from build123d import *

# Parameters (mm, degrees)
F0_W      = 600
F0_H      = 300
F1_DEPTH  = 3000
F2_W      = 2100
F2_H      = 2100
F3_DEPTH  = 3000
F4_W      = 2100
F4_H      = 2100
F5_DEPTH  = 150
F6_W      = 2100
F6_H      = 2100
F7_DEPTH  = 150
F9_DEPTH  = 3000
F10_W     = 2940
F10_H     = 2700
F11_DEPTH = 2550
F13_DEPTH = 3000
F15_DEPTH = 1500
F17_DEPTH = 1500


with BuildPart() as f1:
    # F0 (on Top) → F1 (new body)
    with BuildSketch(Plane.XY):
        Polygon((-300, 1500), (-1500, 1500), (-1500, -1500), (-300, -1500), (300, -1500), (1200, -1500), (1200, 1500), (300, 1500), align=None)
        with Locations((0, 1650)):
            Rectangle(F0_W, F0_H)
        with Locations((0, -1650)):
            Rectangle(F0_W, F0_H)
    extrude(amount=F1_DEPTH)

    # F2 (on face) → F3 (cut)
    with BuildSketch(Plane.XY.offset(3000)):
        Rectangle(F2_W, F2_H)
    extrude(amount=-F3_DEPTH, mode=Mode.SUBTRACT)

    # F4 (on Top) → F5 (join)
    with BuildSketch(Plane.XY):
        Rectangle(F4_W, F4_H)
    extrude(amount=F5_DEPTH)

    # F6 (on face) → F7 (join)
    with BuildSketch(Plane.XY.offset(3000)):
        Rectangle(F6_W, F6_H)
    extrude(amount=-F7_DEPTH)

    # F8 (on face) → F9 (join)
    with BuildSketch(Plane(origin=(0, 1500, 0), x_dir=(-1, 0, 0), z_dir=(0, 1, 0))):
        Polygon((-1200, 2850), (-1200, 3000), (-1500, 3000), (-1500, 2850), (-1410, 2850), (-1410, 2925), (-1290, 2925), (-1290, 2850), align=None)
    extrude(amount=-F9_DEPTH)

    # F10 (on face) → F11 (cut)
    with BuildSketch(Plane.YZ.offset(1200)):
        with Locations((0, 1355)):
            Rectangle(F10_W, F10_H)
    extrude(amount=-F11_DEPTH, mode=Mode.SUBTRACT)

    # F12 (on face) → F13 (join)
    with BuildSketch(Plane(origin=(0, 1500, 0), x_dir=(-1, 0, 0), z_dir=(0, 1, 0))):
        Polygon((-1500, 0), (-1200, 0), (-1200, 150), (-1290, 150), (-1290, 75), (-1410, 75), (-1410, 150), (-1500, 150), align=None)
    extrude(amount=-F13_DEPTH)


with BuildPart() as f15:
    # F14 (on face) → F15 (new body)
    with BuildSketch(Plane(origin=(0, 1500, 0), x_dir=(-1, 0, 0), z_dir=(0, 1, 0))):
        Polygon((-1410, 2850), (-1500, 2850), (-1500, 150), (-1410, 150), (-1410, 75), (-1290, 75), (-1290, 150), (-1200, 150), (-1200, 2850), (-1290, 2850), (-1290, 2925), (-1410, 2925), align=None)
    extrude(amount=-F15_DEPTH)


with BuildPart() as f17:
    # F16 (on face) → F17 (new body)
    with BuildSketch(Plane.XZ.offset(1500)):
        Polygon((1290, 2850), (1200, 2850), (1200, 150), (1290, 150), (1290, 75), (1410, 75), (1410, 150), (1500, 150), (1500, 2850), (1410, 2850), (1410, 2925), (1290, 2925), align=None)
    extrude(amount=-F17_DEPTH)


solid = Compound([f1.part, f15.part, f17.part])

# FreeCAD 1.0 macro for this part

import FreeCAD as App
import Part
import Sketcher

V = App.Vector

doc = App.newDocument("Part")
body = doc.addObject("PartDesign::Body", "Body")

# Sketch on XY plane
sketch1 = doc.addObject("Sketcher::SketchObject", "Sketch")
body.addObject(sketch1)
sketch1.AttachmentSupport = (doc.XY_Plane, [""])
sketch1.MapMode = "FlatFace"
sketch1.addGeometry(Part.LineSegment(V(-1500, 1500, 0), V(-1500, -1500, 0)), False)
sketch1.addGeometry(Part.LineSegment(V(-1500, -1500, 0), V(-300, -1500, 0)), False)
sketch1.addGeometry(Part.LineSegment(V(-300, -1500, 0), V(-300, -1800, 0)), False)
sketch1.addGeometry(Part.LineSegment(V(-300, -1800, 0), V(300, -1800, 0)), False)
sketch1.addGeometry(Part.LineSegment(V(300, -1800, 0), V(300, -1500, 0)), False)
sketch1.addGeometry(Part.LineSegment(V(300, -1500, 0), V(1200, -1500, 0)), False)
sketch1.addGeometry(Part.LineSegment(V(1200, -1500, 0), V(1200, 1500, 0)), False)
sketch1.addGeometry(Part.LineSegment(V(1200, 1500, 0), V(300, 1500, 0)), False)
sketch1.addGeometry(Part.LineSegment(V(300, 1500, 0), V(300, 1800, 0)), False)
sketch1.addGeometry(Part.LineSegment(V(300, 1800, 0), V(-300, 1800, 0)), False)
sketch1.addGeometry(Part.LineSegment(V(-300, 1800, 0), V(-300, 1500, 0)), False)
sketch1.addGeometry(Part.LineSegment(V(-300, 1500, 0), V(-1500, 1500, 0)), False)
sketch1.addConstraint(Sketcher.Constraint("Coincident", 0, 2, 1, 1))
sketch1.addConstraint(Sketcher.Constraint("Coincident", 1, 2, 2, 1))
sketch1.addConstraint(Sketcher.Constraint("Coincident", 2, 2, 3, 1))
sketch1.addConstraint(Sketcher.Constraint("Coincident", 3, 2, 4, 1))
sketch1.addConstraint(Sketcher.Constraint("Coincident", 4, 2, 5, 1))
sketch1.addConstraint(Sketcher.Constraint("Coincident", 5, 2, 6, 1))
sketch1.addConstraint(Sketcher.Constraint("Coincident", 6, 2, 7, 1))
sketch1.addConstraint(Sketcher.Constraint("Coincident", 7, 2, 8, 1))
sketch1.addConstraint(Sketcher.Constraint("Coincident", 8, 2, 9, 1))
sketch1.addConstraint(Sketcher.Constraint("Coincident", 9, 2, 10, 1))
sketch1.addConstraint(Sketcher.Constraint("Coincident", 10, 2, 11, 1))
sketch1.addConstraint(Sketcher.Constraint("Coincident", 11, 2, 0, 1))
sketch1.addConstraint(Sketcher.Constraint("Vertical", 0))
sketch1.addConstraint(Sketcher.Constraint("Horizontal", 1))
sketch1.addConstraint(Sketcher.Constraint("Vertical", 2))
sketch1.addConstraint(Sketcher.Constraint("Horizontal", 3))
sketch1.addConstraint(Sketcher.Constraint("Vertical", 4))
sketch1.addConstraint(Sketcher.Constraint("Horizontal", 5))
sketch1.addConstraint(Sketcher.Constraint("Vertical", 6))
sketch1.addConstraint(Sketcher.Constraint("Horizontal", 7))
sketch1.addConstraint(Sketcher.Constraint("Vertical", 8))
sketch1.addConstraint(Sketcher.Constraint("Horizontal", 9))
sketch1.addConstraint(Sketcher.Constraint("Vertical", 10))
sketch1.addConstraint(Sketcher.Constraint("Horizontal", 11))
sketch1.addConstraint(Sketcher.Constraint("Symmetric", 1, 2, 7, 2, -1, 1))
sketch1.addConstraint(Sketcher.Constraint("Symmetric", 3, 2, 9, 2, -1, 1))
sketch1.addConstraint(Sketcher.Constraint("Symmetric", 1, 2, 4, 2, -2))
sketch1.addConstraint(Sketcher.Constraint("Horizontal", 7, 2, 10, 2))
sketch1.addConstraint(Sketcher.Constraint("DistanceX", 1, 1, 1, 2, 1200.0))
sketch1.addConstraint(Sketcher.Constraint("DistanceX", 3, 1, 3, 2, 600.0))
sketch1.addConstraint(Sketcher.Constraint("DistanceX", 5, 1, 5, 2, 900.0))
sketch1.addConstraint(Sketcher.Constraint("DistanceY", 0, 2, 0, 1, 3000.0))
sketch1.addConstraint(Sketcher.Constraint("DistanceY", 2, 2, 2, 1, 300.0))
pad1 = doc.addObject("PartDesign::Pad", "Pad")
body.addObject(pad1)
pad1.Profile = sketch1
pad1.Length = 3000

# Sketch on XY plane
sketch2 = doc.addObject("Sketcher::SketchObject", "Sketch001")
body.addObject(sketch2)
sketch2.AttachmentSupport = (doc.XY_Plane, [""])
sketch2.MapMode = "FlatFace"
sketch2.AttachmentOffset = App.Placement(V(0, 0, 3000), App.Rotation())
sketch2.addGeometry(Part.LineSegment(V(-1050, 1050, 0), V(-1050, -1050, 0)), False)
sketch2.addGeometry(Part.LineSegment(V(-1050, -1050, 0), V(1050, -1050, 0)), False)
sketch2.addGeometry(Part.LineSegment(V(1050, -1050, 0), V(1050, 1050, 0)), False)
sketch2.addGeometry(Part.LineSegment(V(1050, 1050, 0), V(-1050, 1050, 0)), False)
sketch2.addConstraint(Sketcher.Constraint("Coincident", 0, 2, 1, 1))
sketch2.addConstraint(Sketcher.Constraint("Coincident", 1, 2, 2, 1))
sketch2.addConstraint(Sketcher.Constraint("Coincident", 2, 2, 3, 1))
sketch2.addConstraint(Sketcher.Constraint("Coincident", 3, 2, 0, 1))
sketch2.addConstraint(Sketcher.Constraint("Vertical", 0))
sketch2.addConstraint(Sketcher.Constraint("Horizontal", 1))
sketch2.addConstraint(Sketcher.Constraint("Vertical", 2))
sketch2.addConstraint(Sketcher.Constraint("Horizontal", 3))
sketch2.addConstraint(Sketcher.Constraint("Symmetric", 0, 2, 2, 2, -1, 1))
sketch2.addConstraint(Sketcher.Constraint("Equal", 3, 0))
sketch2.addConstraint(Sketcher.Constraint("DistanceX", 1, 1, 1, 2, 2100.0))
pocket1 = doc.addObject("PartDesign::Pocket", "Pocket")
body.addObject(pocket1)
pocket1.Profile = sketch2
pocket1.Length = 3000

# Sketch on XY plane
sketch3 = doc.addObject("Sketcher::SketchObject", "Sketch002")
body.addObject(sketch3)
sketch3.AttachmentSupport = (doc.XY_Plane, [""])
sketch3.MapMode = "FlatFace"
sketch3.addGeometry(Part.LineSegment(V(-1050, 1050, 0), V(-1050, -1050, 0)), False)
sketch3.addGeometry(Part.LineSegment(V(-1050, -1050, 0), V(1050, -1050, 0)), False)
sketch3.addGeometry(Part.LineSegment(V(1050, -1050, 0), V(1050, 1050, 0)), False)
sketch3.addGeometry(Part.LineSegment(V(1050, 1050, 0), V(-1050, 1050, 0)), False)
sketch3.addConstraint(Sketcher.Constraint("Coincident", 0, 2, 1, 1))
sketch3.addConstraint(Sketcher.Constraint("Coincident", 1, 2, 2, 1))
sketch3.addConstraint(Sketcher.Constraint("Coincident", 2, 2, 3, 1))
sketch3.addConstraint(Sketcher.Constraint("Coincident", 3, 2, 0, 1))
sketch3.addConstraint(Sketcher.Constraint("Vertical", 0))
sketch3.addConstraint(Sketcher.Constraint("Horizontal", 1))
sketch3.addConstraint(Sketcher.Constraint("Vertical", 2))
sketch3.addConstraint(Sketcher.Constraint("Horizontal", 3))
sketch3.addConstraint(Sketcher.Constraint("Symmetric", 0, 2, 2, 2, -1, 1))
sketch3.addConstraint(Sketcher.Constraint("Equal", 3, 0))
sketch3.addConstraint(Sketcher.Constraint("DistanceX", 1, 1, 1, 2, 2100.0))
pad2 = doc.addObject("PartDesign::Pad", "Pad001")
body.addObject(pad2)
pad2.Profile = sketch3
pad2.Length = 150

# Sketch on XY plane
sketch4 = doc.addObject("Sketcher::SketchObject", "Sketch003")
body.addObject(sketch4)
sketch4.AttachmentSupport = (doc.XY_Plane, [""])
sketch4.MapMode = "FlatFace"
sketch4.AttachmentOffset = App.Placement(V(0, 0, 3000), App.Rotation())
sketch4.addGeometry(Part.LineSegment(V(-1050, 1050, 0), V(-1050, -1050, 0)), False)
sketch4.addGeometry(Part.LineSegment(V(-1050, -1050, 0), V(1050, -1050, 0)), False)
sketch4.addGeometry(Part.LineSegment(V(1050, -1050, 0), V(1050, 1050, 0)), False)
sketch4.addGeometry(Part.LineSegment(V(1050, 1050, 0), V(-1050, 1050, 0)), False)
sketch4.addConstraint(Sketcher.Constraint("Coincident", 0, 2, 1, 1))
sketch4.addConstraint(Sketcher.Constraint("Coincident", 1, 2, 2, 1))
sketch4.addConstraint(Sketcher.Constraint("Coincident", 2, 2, 3, 1))
sketch4.addConstraint(Sketcher.Constraint("Coincident", 3, 2, 0, 1))
sketch4.addConstraint(Sketcher.Constraint("Vertical", 0))
sketch4.addConstraint(Sketcher.Constraint("Horizontal", 1))
sketch4.addConstraint(Sketcher.Constraint("Vertical", 2))
sketch4.addConstraint(Sketcher.Constraint("Horizontal", 3))
sketch4.addConstraint(Sketcher.Constraint("Symmetric", 0, 2, 2, 2, -1, 1))
sketch4.addConstraint(Sketcher.Constraint("Equal", 3, 0))
sketch4.addConstraint(Sketcher.Constraint("DistanceX", 1, 1, 1, 2, 2100.0))
pad3 = doc.addObject("PartDesign::Pad", "Pad002")
body.addObject(pad3)
pad3.Profile = sketch4
pad3.Length = 150
pad3.Reversed = True

# Sketch on XZ plane
sketch5 = doc.addObject("Sketcher::SketchObject", "Sketch004")
body.addObject(sketch5)
sketch5.AttachmentSupport = (doc.XZ_Plane, [""])
sketch5.MapMode = "FlatFace"
sketch5.AttachmentOffset = App.Placement(V(0, 0, -1500), App.Rotation())
sketch5.addGeometry(Part.LineSegment(V(1200, 2850, 0), V(1200, 3000, 0)), False)
sketch5.addGeometry(Part.LineSegment(V(1200, 3000, 0), V(1500, 3000, 0)), False)
sketch5.addGeometry(Part.LineSegment(V(1500, 3000, 0), V(1500, 2850, 0)), False)
sketch5.addGeometry(Part.LineSegment(V(1500, 2850, 0), V(1410, 2850, 0)), False)
sketch5.addGeometry(Part.LineSegment(V(1410, 2850, 0), V(1410, 2925, 0)), False)
sketch5.addGeometry(Part.LineSegment(V(1410, 2925, 0), V(1290, 2925, 0)), False)
sketch5.addGeometry(Part.LineSegment(V(1290, 2925, 0), V(1290, 2850, 0)), False)
sketch5.addGeometry(Part.LineSegment(V(1290, 2850, 0), V(1200, 2850, 0)), False)
sketch5.addConstraint(Sketcher.Constraint("Coincident", 0, 2, 1, 1))
sketch5.addConstraint(Sketcher.Constraint("Coincident", 1, 2, 2, 1))
sketch5.addConstraint(Sketcher.Constraint("Coincident", 2, 2, 3, 1))
sketch5.addConstraint(Sketcher.Constraint("Coincident", 3, 2, 4, 1))
sketch5.addConstraint(Sketcher.Constraint("Coincident", 4, 2, 5, 1))
sketch5.addConstraint(Sketcher.Constraint("Coincident", 5, 2, 6, 1))
sketch5.addConstraint(Sketcher.Constraint("Coincident", 6, 2, 7, 1))
sketch5.addConstraint(Sketcher.Constraint("Coincident", 7, 2, 0, 1))
sketch5.addConstraint(Sketcher.Constraint("Vertical", 0))
sketch5.addConstraint(Sketcher.Constraint("Horizontal", 1))
sketch5.addConstraint(Sketcher.Constraint("Vertical", 2))
sketch5.addConstraint(Sketcher.Constraint("Horizontal", 3))
sketch5.addConstraint(Sketcher.Constraint("Vertical", 4))
sketch5.addConstraint(Sketcher.Constraint("Horizontal", 5))
sketch5.addConstraint(Sketcher.Constraint("Vertical", 6))
sketch5.addConstraint(Sketcher.Constraint("Horizontal", 7))
sketch5.addConstraint(Sketcher.Constraint("Horizontal", 3, 2, 6, 2))
sketch5.addConstraint(Sketcher.Constraint("Equal", 3, 7))
sketch5.addConstraint(Sketcher.Constraint("DistanceX", 1, 1, 1, 2, 300.0))
sketch5.addConstraint(Sketcher.Constraint("DistanceX", 3, 2, 3, 1, 90.0))
sketch5.addConstraint(Sketcher.Constraint("DistanceY", 0, 1, 0, 2, 150.0))
sketch5.addConstraint(Sketcher.Constraint("DistanceY", 4, 1, 4, 2, 75.0))
sketch5.addConstraint(Sketcher.Constraint("DistanceX", -1, 1, 0, 2, 1200.0))
sketch5.addConstraint(Sketcher.Constraint("DistanceY", -1, 1, 0, 2, 3000.0))
pad4 = doc.addObject("PartDesign::Pad", "Pad003")
body.addObject(pad4)
pad4.Profile = sketch5
pad4.Length = 3000

# Sketch on YZ plane
sketch6 = doc.addObject("Sketcher::SketchObject", "Sketch005")
body.addObject(sketch6)
sketch6.AttachmentSupport = (doc.YZ_Plane, [""])
sketch6.MapMode = "FlatFace"
sketch6.AttachmentOffset = App.Placement(V(0, 0, 1200), App.Rotation())
sketch6.addGeometry(Part.LineSegment(V(-1470, 2705, 0), V(-1470, 5, 0)), False)
sketch6.addGeometry(Part.LineSegment(V(-1470, 5, 0), V(1470, 5, 0)), False)
sketch6.addGeometry(Part.LineSegment(V(1470, 5, 0), V(1470, 2705, 0)), False)
sketch6.addGeometry(Part.LineSegment(V(1470, 2705, 0), V(-1470, 2705, 0)), False)
sketch6.addConstraint(Sketcher.Constraint("Coincident", 0, 2, 1, 1))
sketch6.addConstraint(Sketcher.Constraint("Coincident", 1, 2, 2, 1))
sketch6.addConstraint(Sketcher.Constraint("Coincident", 2, 2, 3, 1))
sketch6.addConstraint(Sketcher.Constraint("Coincident", 3, 2, 0, 1))
sketch6.addConstraint(Sketcher.Constraint("Vertical", 0))
sketch6.addConstraint(Sketcher.Constraint("Horizontal", 1))
sketch6.addConstraint(Sketcher.Constraint("Vertical", 2))
sketch6.addConstraint(Sketcher.Constraint("Horizontal", 3))
sketch6.addConstraint(Sketcher.Constraint("DistanceX", 1, 1, 1, 2, 2940.0))
sketch6.addConstraint(Sketcher.Constraint("DistanceY", 0, 2, 0, 1, 2700.0))
sketch6.addConstraint(Sketcher.Constraint("DistanceX", 0, 2, -1, 1, 1470.0))
sketch6.addConstraint(Sketcher.Constraint("DistanceY", -1, 1, 0, 2, 5.0))
pocket2 = doc.addObject("PartDesign::Pocket", "Pocket001")
body.addObject(pocket2)
pocket2.Profile = sketch6
pocket2.Length = 2550

# Sketch on XZ plane
sketch7 = doc.addObject("Sketcher::SketchObject", "Sketch006")
body.addObject(sketch7)
sketch7.AttachmentSupport = (doc.XZ_Plane, [""])
sketch7.MapMode = "FlatFace"
sketch7.AttachmentOffset = App.Placement(V(0, 0, -1500), App.Rotation())
sketch7.addGeometry(Part.LineSegment(V(1500, 0, 0), V(1200, 0, 0)), False)
sketch7.addGeometry(Part.LineSegment(V(1200, 0, 0), V(1200, 150, 0)), False)
sketch7.addGeometry(Part.LineSegment(V(1200, 150, 0), V(1290, 150, 0)), False)
sketch7.addGeometry(Part.LineSegment(V(1290, 150, 0), V(1290, 75, 0)), False)
sketch7.addGeometry(Part.LineSegment(V(1290, 75, 0), V(1410, 75, 0)), False)
sketch7.addGeometry(Part.LineSegment(V(1410, 75, 0), V(1410, 150, 0)), False)
sketch7.addGeometry(Part.LineSegment(V(1410, 150, 0), V(1500, 150, 0)), False)
sketch7.addGeometry(Part.LineSegment(V(1500, 150, 0), V(1500, 0, 0)), False)
sketch7.addConstraint(Sketcher.Constraint("Coincident", 0, 2, 1, 1))
sketch7.addConstraint(Sketcher.Constraint("Coincident", 1, 2, 2, 1))
sketch7.addConstraint(Sketcher.Constraint("Coincident", 2, 2, 3, 1))
sketch7.addConstraint(Sketcher.Constraint("Coincident", 3, 2, 4, 1))
sketch7.addConstraint(Sketcher.Constraint("Coincident", 4, 2, 5, 1))
sketch7.addConstraint(Sketcher.Constraint("Coincident", 5, 2, 6, 1))
sketch7.addConstraint(Sketcher.Constraint("Coincident", 6, 2, 7, 1))
sketch7.addConstraint(Sketcher.Constraint("Coincident", 7, 2, 0, 1))
sketch7.addConstraint(Sketcher.Constraint("Horizontal", 0))
sketch7.addConstraint(Sketcher.Constraint("Vertical", 1))
sketch7.addConstraint(Sketcher.Constraint("Horizontal", 2))
sketch7.addConstraint(Sketcher.Constraint("Vertical", 3))
sketch7.addConstraint(Sketcher.Constraint("Horizontal", 4))
sketch7.addConstraint(Sketcher.Constraint("Vertical", 5))
sketch7.addConstraint(Sketcher.Constraint("Horizontal", 6))
sketch7.addConstraint(Sketcher.Constraint("Vertical", 7))
sketch7.addConstraint(Sketcher.Constraint("PointOnObject", 0, 2, -1))
sketch7.addConstraint(Sketcher.Constraint("Horizontal", 2, 2, 5, 2))
sketch7.addConstraint(Sketcher.Constraint("Equal", 2, 6))
sketch7.addConstraint(Sketcher.Constraint("DistanceX", 0, 2, 0, 1, 300.0))
sketch7.addConstraint(Sketcher.Constraint("DistanceX", 2, 1, 2, 2, 90.0))
sketch7.addConstraint(Sketcher.Constraint("DistanceY", 1, 1, 1, 2, 150.0))
sketch7.addConstraint(Sketcher.Constraint("DistanceY", 3, 2, 3, 1, 75.0))
sketch7.addConstraint(Sketcher.Constraint("DistanceX", -1, 1, 0, 2, 1200.0))
pad5 = doc.addObject("PartDesign::Pad", "Pad004")
body.addObject(pad5)
pad5.Profile = sketch7
pad5.Length = 3000
body2 = doc.addObject("PartDesign::Body", "Body001")

# Sketch on XZ plane
sketch8 = doc.addObject("Sketcher::SketchObject", "Sketch007")
body2.addObject(sketch8)
sketch8.AttachmentSupport = (doc.getObject("XZ_Plane001"), [""])
sketch8.MapMode = "FlatFace"
sketch8.AttachmentOffset = App.Placement(V(0, 0, -1500), App.Rotation())
sketch8.addGeometry(Part.LineSegment(V(1410, 2850, 0), V(1500, 2850, 0)), False)
sketch8.addGeometry(Part.LineSegment(V(1500, 2850, 0), V(1500, 150, 0)), False)
sketch8.addGeometry(Part.LineSegment(V(1500, 150, 0), V(1410, 150, 0)), False)
sketch8.addGeometry(Part.LineSegment(V(1410, 150, 0), V(1410, 75, 0)), False)
sketch8.addGeometry(Part.LineSegment(V(1410, 75, 0), V(1290, 75, 0)), False)
sketch8.addGeometry(Part.LineSegment(V(1290, 75, 0), V(1290, 150, 0)), False)
sketch8.addGeometry(Part.LineSegment(V(1290, 150, 0), V(1200, 150, 0)), False)
sketch8.addGeometry(Part.LineSegment(V(1200, 150, 0), V(1200, 2850, 0)), False)
sketch8.addGeometry(Part.LineSegment(V(1200, 2850, 0), V(1290, 2850, 0)), False)
sketch8.addGeometry(Part.LineSegment(V(1290, 2850, 0), V(1290, 2925, 0)), False)
sketch8.addGeometry(Part.LineSegment(V(1290, 2925, 0), V(1410, 2925, 0)), False)
sketch8.addGeometry(Part.LineSegment(V(1410, 2925, 0), V(1410, 2850, 0)), False)
sketch8.addConstraint(Sketcher.Constraint("Coincident", 0, 2, 1, 1))
sketch8.addConstraint(Sketcher.Constraint("Coincident", 1, 2, 2, 1))
sketch8.addConstraint(Sketcher.Constraint("Coincident", 2, 2, 3, 1))
sketch8.addConstraint(Sketcher.Constraint("Coincident", 3, 2, 4, 1))
sketch8.addConstraint(Sketcher.Constraint("Coincident", 4, 2, 5, 1))
sketch8.addConstraint(Sketcher.Constraint("Coincident", 5, 2, 6, 1))
sketch8.addConstraint(Sketcher.Constraint("Coincident", 6, 2, 7, 1))
sketch8.addConstraint(Sketcher.Constraint("Coincident", 7, 2, 8, 1))
sketch8.addConstraint(Sketcher.Constraint("Coincident", 8, 2, 9, 1))
sketch8.addConstraint(Sketcher.Constraint("Coincident", 9, 2, 10, 1))
sketch8.addConstraint(Sketcher.Constraint("Coincident", 10, 2, 11, 1))
sketch8.addConstraint(Sketcher.Constraint("Coincident", 11, 2, 0, 1))
sketch8.addConstraint(Sketcher.Constraint("Horizontal", 0))
sketch8.addConstraint(Sketcher.Constraint("Vertical", 1))
sketch8.addConstraint(Sketcher.Constraint("Horizontal", 2))
sketch8.addConstraint(Sketcher.Constraint("Vertical", 3))
sketch8.addConstraint(Sketcher.Constraint("Horizontal", 4))
sketch8.addConstraint(Sketcher.Constraint("Vertical", 5))
sketch8.addConstraint(Sketcher.Constraint("Horizontal", 6))
sketch8.addConstraint(Sketcher.Constraint("Vertical", 7))
sketch8.addConstraint(Sketcher.Constraint("Horizontal", 8))
sketch8.addConstraint(Sketcher.Constraint("Vertical", 9))
sketch8.addConstraint(Sketcher.Constraint("Horizontal", 10))
sketch8.addConstraint(Sketcher.Constraint("Vertical", 11))
sketch8.addConstraint(Sketcher.Constraint("Horizontal", 2, 2, 5, 2))
sketch8.addConstraint(Sketcher.Constraint("Horizontal", 0, 2, 7, 2))
sketch8.addConstraint(Sketcher.Constraint("Vertical", 5, 2, 8, 2))
sketch8.addConstraint(Sketcher.Constraint("Vertical", 3, 2, 10, 2))
sketch8.addConstraint(Sketcher.Constraint("Equal", 2, 6))
sketch8.addConstraint(Sketcher.Constraint("Equal", 5, 9))
sketch8.addConstraint(Sketcher.Constraint("DistanceX", 0, 1, 0, 2, 90.0))
sketch8.addConstraint(Sketcher.Constraint("DistanceX", 4, 2, 4, 1, 120.0))
sketch8.addConstraint(Sketcher.Constraint("DistanceY", 1, 2, 1, 1, 2700.0))
sketch8.addConstraint(Sketcher.Constraint("DistanceY", 3, 2, 3, 1, 75.0))
sketch8.addConstraint(Sketcher.Constraint("DistanceX", -1, 1, 0, 2, 1500.0))
sketch8.addConstraint(Sketcher.Constraint("DistanceY", -1, 1, 0, 2, 2850.0))
pad6 = doc.addObject("PartDesign::Pad", "Pad005")
body2.addObject(pad6)
pad6.Profile = sketch8
pad6.Length = 1500
body3 = doc.addObject("PartDesign::Body", "Body002")

# Sketch on XZ plane
sketch9 = doc.addObject("Sketcher::SketchObject", "Sketch008")
body3.addObject(sketch9)
sketch9.AttachmentSupport = (doc.getObject("XZ_Plane002"), [""])
sketch9.MapMode = "FlatFace"
sketch9.AttachmentOffset = App.Placement(V(0, 0, 1500), App.Rotation())
sketch9.addGeometry(Part.LineSegment(V(1290, 2850, 0), V(1200, 2850, 0)), False)
sketch9.addGeometry(Part.LineSegment(V(1200, 2850, 0), V(1200, 150, 0)), False)
sketch9.addGeometry(Part.LineSegment(V(1200, 150, 0), V(1290, 150, 0)), False)
sketch9.addGeometry(Part.LineSegment(V(1290, 150, 0), V(1290, 75, 0)), False)
sketch9.addGeometry(Part.LineSegment(V(1290, 75, 0), V(1410, 75, 0)), False)
sketch9.addGeometry(Part.LineSegment(V(1410, 75, 0), V(1410, 150, 0)), False)
sketch9.addGeometry(Part.LineSegment(V(1410, 150, 0), V(1500, 150, 0)), False)
sketch9.addGeometry(Part.LineSegment(V(1500, 150, 0), V(1500, 2850, 0)), False)
sketch9.addGeometry(Part.LineSegment(V(1500, 2850, 0), V(1410, 2850, 0)), False)
sketch9.addGeometry(Part.LineSegment(V(1410, 2850, 0), V(1410, 2925, 0)), False)
sketch9.addGeometry(Part.LineSegment(V(1410, 2925, 0), V(1290, 2925, 0)), False)
sketch9.addGeometry(Part.LineSegment(V(1290, 2925, 0), V(1290, 2850, 0)), False)
sketch9.addConstraint(Sketcher.Constraint("Coincident", 0, 2, 1, 1))
sketch9.addConstraint(Sketcher.Constraint("Coincident", 1, 2, 2, 1))
sketch9.addConstraint(Sketcher.Constraint("Coincident", 2, 2, 3, 1))
sketch9.addConstraint(Sketcher.Constraint("Coincident", 3, 2, 4, 1))
sketch9.addConstraint(Sketcher.Constraint("Coincident", 4, 2, 5, 1))
sketch9.addConstraint(Sketcher.Constraint("Coincident", 5, 2, 6, 1))
sketch9.addConstraint(Sketcher.Constraint("Coincident", 6, 2, 7, 1))
sketch9.addConstraint(Sketcher.Constraint("Coincident", 7, 2, 8, 1))
sketch9.addConstraint(Sketcher.Constraint("Coincident", 8, 2, 9, 1))
sketch9.addConstraint(Sketcher.Constraint("Coincident", 9, 2, 10, 1))
sketch9.addConstraint(Sketcher.Constraint("Coincident", 10, 2, 11, 1))
sketch9.addConstraint(Sketcher.Constraint("Coincident", 11, 2, 0, 1))
sketch9.addConstraint(Sketcher.Constraint("Horizontal", 0))
sketch9.addConstraint(Sketcher.Constraint("Vertical", 1))
sketch9.addConstraint(Sketcher.Constraint("Horizontal", 2))
sketch9.addConstraint(Sketcher.Constraint("Vertical", 3))
sketch9.addConstraint(Sketcher.Constraint("Horizontal", 4))
sketch9.addConstraint(Sketcher.Constraint("Vertical", 5))
sketch9.addConstraint(Sketcher.Constraint("Horizontal", 6))
sketch9.addConstraint(Sketcher.Constraint("Vertical", 7))
sketch9.addConstraint(Sketcher.Constraint("Horizontal", 8))
sketch9.addConstraint(Sketcher.Constraint("Vertical", 9))
sketch9.addConstraint(Sketcher.Constraint("Horizontal", 10))
sketch9.addConstraint(Sketcher.Constraint("Vertical", 11))
sketch9.addConstraint(Sketcher.Constraint("Horizontal", 2, 2, 5, 2))
sketch9.addConstraint(Sketcher.Constraint("Horizontal", 0, 2, 7, 2))
sketch9.addConstraint(Sketcher.Constraint("Vertical", 5, 2, 8, 2))
sketch9.addConstraint(Sketcher.Constraint("Vertical", 3, 2, 10, 2))
sketch9.addConstraint(Sketcher.Constraint("Equal", 2, 6))
sketch9.addConstraint(Sketcher.Constraint("Equal", 5, 9))
sketch9.addConstraint(Sketcher.Constraint("DistanceX", 0, 2, 0, 1, 90.0))
sketch9.addConstraint(Sketcher.Constraint("DistanceX", 4, 1, 4, 2, 120.0))
sketch9.addConstraint(Sketcher.Constraint("DistanceY", 1, 2, 1, 1, 2700.0))
sketch9.addConstraint(Sketcher.Constraint("DistanceY", 3, 2, 3, 1, 75.0))
sketch9.addConstraint(Sketcher.Constraint("DistanceX", -1, 1, 0, 2, 1200.0))
sketch9.addConstraint(Sketcher.Constraint("DistanceY", -1, 1, 0, 2, 2850.0))
pad7 = doc.addObject("PartDesign::Pad", "Pad006")
body3.addObject(pad7)
pad7.Profile = sketch9
pad7.Length = 1500
pad7.Reversed = True

doc.recompute()
